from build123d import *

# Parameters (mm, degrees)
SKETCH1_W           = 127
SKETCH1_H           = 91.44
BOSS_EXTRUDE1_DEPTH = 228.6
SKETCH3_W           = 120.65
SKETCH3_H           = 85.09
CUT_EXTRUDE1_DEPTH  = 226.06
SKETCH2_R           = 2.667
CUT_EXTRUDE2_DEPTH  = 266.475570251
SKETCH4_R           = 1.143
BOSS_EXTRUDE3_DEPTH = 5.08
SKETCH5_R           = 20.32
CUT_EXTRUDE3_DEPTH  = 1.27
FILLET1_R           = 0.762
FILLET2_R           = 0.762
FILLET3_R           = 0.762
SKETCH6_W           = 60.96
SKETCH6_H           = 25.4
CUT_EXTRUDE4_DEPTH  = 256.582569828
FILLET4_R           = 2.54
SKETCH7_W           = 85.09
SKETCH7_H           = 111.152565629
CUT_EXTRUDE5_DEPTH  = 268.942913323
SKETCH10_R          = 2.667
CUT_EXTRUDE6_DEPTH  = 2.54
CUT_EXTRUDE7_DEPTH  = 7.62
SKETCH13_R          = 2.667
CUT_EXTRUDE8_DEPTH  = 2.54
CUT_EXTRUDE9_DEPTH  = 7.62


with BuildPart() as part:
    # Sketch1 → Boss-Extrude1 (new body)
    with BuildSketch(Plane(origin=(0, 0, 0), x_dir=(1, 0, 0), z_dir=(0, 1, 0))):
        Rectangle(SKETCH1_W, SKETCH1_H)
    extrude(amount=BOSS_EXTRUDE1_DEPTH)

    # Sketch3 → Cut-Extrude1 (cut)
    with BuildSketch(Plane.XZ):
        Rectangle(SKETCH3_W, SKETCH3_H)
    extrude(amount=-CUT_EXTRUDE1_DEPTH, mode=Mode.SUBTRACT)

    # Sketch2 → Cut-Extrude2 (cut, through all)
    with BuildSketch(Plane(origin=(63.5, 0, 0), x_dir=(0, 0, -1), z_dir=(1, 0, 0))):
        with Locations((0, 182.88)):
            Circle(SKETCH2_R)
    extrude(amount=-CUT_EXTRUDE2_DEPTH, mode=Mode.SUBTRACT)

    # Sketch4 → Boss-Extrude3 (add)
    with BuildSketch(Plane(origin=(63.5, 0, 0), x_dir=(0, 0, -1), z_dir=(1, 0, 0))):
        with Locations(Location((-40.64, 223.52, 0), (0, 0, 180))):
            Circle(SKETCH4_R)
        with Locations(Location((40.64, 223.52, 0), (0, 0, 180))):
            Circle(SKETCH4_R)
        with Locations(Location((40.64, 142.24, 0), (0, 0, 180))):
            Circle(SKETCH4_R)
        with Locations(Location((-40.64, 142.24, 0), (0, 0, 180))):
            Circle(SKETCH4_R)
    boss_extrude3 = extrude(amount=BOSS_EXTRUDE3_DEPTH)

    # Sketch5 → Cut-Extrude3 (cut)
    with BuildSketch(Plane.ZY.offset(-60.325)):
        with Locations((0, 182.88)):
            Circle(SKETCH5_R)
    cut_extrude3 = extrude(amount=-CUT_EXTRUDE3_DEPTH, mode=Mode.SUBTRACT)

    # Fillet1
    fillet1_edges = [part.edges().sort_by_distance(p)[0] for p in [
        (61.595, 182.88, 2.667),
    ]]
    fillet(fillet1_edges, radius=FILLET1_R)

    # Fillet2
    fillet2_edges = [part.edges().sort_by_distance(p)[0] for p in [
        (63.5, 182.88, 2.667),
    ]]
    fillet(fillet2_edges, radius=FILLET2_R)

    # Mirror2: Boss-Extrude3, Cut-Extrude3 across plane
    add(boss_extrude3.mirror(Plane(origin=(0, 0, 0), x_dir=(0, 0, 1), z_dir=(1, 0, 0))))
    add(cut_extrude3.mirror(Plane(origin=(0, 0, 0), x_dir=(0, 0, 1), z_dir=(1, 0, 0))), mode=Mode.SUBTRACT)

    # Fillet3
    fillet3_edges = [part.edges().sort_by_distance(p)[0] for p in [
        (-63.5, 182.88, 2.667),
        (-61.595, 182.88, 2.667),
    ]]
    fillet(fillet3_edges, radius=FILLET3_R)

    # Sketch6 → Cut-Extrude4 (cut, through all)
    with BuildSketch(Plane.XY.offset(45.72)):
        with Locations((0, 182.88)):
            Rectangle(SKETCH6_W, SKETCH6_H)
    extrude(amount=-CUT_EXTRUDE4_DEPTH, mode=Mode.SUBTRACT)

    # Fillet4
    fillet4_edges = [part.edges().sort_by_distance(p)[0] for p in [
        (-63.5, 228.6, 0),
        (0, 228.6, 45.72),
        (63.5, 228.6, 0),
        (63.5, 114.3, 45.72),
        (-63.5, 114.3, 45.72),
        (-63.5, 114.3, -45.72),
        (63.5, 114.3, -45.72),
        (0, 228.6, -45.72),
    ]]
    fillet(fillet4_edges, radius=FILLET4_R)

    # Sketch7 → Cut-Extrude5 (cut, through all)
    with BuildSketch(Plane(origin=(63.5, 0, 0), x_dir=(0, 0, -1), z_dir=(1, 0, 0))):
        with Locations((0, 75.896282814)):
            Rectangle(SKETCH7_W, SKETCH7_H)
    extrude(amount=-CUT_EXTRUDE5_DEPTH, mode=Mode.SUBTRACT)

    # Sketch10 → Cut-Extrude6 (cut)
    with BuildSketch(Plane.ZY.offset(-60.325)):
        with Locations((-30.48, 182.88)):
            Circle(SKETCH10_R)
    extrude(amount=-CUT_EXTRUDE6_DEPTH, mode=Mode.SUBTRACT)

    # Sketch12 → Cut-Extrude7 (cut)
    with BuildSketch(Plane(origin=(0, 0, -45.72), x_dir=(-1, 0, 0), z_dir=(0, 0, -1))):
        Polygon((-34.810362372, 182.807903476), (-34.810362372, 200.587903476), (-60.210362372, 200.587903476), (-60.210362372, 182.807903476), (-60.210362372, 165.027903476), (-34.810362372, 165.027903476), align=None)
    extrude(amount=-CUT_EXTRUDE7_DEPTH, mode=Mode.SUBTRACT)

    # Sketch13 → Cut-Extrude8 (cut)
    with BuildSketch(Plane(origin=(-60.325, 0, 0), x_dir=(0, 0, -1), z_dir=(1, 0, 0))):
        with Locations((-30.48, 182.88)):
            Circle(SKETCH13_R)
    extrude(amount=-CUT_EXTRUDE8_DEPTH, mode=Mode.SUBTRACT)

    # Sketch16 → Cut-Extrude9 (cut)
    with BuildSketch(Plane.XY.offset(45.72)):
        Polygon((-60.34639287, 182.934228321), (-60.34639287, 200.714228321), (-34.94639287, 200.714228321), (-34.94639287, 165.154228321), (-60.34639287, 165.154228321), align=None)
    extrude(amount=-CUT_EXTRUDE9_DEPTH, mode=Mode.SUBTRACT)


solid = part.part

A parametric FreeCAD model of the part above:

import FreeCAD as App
import Part
import Sketcher
from FreeCAD import Vector
Q = App.Units.Quantity


def edges_at(feature, points):
    """Names of the edges that pass closest to the given points."""
    edges = feature.Shape.Edges
    near = lambda p: min(range(len(edges)), key=lambda i: edges[i].distToShape(Part.Vertex(*p))[0])
    return sorted({f"Edge{near(p) + 1}" for p in points})

doc = App.newDocument("Part")
body = doc.addObject("PartDesign::Body", "Body")

sketch1 = body.newObject("Sketcher::SketchObject", "Sketch")
sketch1.AttachmentSupport = (doc.getObject("XZ_Plane"), [""])
sketch1.MapMode = "FlatFace"
sketch1.addGeometry([
    Part.LineSegment(Vector(-64, -46, 0), Vector(-64, 46, 0)),
    Part.LineSegment(Vector(-64, 46, 0), Vector(64, 46, 0)),
    Part.LineSegment(Vector(64, 46, 0), Vector(64, -46, 0)),
    Part.LineSegment(Vector(64, -46, 0), Vector(-64, -46, 0)),
], False)
sketch1.addConstraint([
    Sketcher.Constraint("Coincident", 0, 2, 1, 1),
    Sketcher.Constraint("Coincident", 1, 2, 2, 1),
    Sketcher.Constraint("Coincident", 2, 2, 3, 1),
    Sketcher.Constraint("Coincident", 3, 2, 0, 1),
    Sketcher.Constraint("Vertical", 0),
    Sketcher.Constraint("Horizontal", 1),
    Sketcher.Constraint("Vertical", 2),
    Sketcher.Constraint("Horizontal", 3),
    Sketcher.Constraint("Symmetric", 0, 2, 2, 2, -1, 1),
    Sketcher.Constraint("DistanceX", 1, 1, 1, 2, Q("5 in")),
    Sketcher.Constraint("DistanceY", 0, 1, 0, 2, Q("3.6 in")),
])
pad1 = body.newObject("PartDesign::Pad", "Pad")
pad1.Profile = sketch1
pad1.Length = Q("9 in")
pad1.Reversed = True

sketch2 = body.newObject("Sketcher::SketchObject", "Sketch001")
sketch2.AttachmentSupport = (doc.getObject("XZ_Plane"), [""])
sketch2.MapMode = "FlatFace"
sketch2.addGeometry([
    Part.LineSegment(Vector(-60, 43, 0), Vector(-60, -43, 0)),
    Part.LineSegment(Vector(-60, -43, 0), Vector(60, -43, 0)),
    Part.LineSegment(Vector(60, -43, 0), Vector(60, 43, 0)),
    Part.LineSegment(Vector(60, 43, 0), Vector(-60, 43, 0)),
], False)
sketch2.addConstraint([
    Sketcher.Constraint("Coincident", 0, 2, 1, 1),
    Sketcher.Constraint("Coincident", 1, 2, 2, 1),
    Sketcher.Constraint("Coincident", 2, 2, 3, 1),
    Sketcher.Constraint("Coincident", 3, 2, 0, 1),
    Sketcher.Constraint("Vertical", 0),
    Sketcher.Constraint("Horizontal", 1),
    Sketcher.Constraint("Vertical", 2),
    Sketcher.Constraint("Horizontal", 3),
    Sketcher.Constraint("Symmetric", 0, 2, 2, 2, -1, 1),
    Sketcher.Constraint("DistanceX", 1, 1, 1, 2, Q("4.75 in")),
    Sketcher.Constraint("DistanceY", 0, 2, 0, 1, Q("3.35 in")),
])
pocket1 = body.newObject("PartDesign::Pocket", "Pocket")
pocket1.Profile = sketch2
pocket1.Length = Q("8.9 in")

sketch3 = body.newObject("Sketcher::SketchObject", "Sketch002")
sketch3.AttachmentSupport = (doc.getObject("YZ_Plane"), [""])
sketch3.MapMode = "FlatFace"
sketch3.AttachmentOffset = App.Placement(Vector(0, 0, 2.5 * 25.4), App.Rotation())
sketch3.addGeometry(Part.Circle(Vector(182.9, 0, 0), Vector(0, 0, 1), 2.7), False)
sketch3.addConstraint([
    Sketcher.Constraint("PointOnObject", 0, 3, -1),
    Sketcher.Constraint("Diameter", 0, Q("0.21 in")),
    Sketcher.Constraint("DistanceX", -1, 1, 0, 3, Q("7.2 in")),
])
pocket2 = body.newObject("PartDesign::Pocket", "Pocket001")
pocket2.Profile = sketch3
pocket2.Type = "ThroughAll"

sketch4 = body.newObject("Sketcher::SketchObject", "Sketch003")
sketch4.AttachmentSupport = (doc.getObject("YZ_Plane"), [""])
sketch4.MapMode = "FlatFace"
sketch4.AttachmentOffset = App.Placement(Vector(0, 0, 2.5 * 25.4), App.Rotation())
sketch4.addGeometry([
    Part.Circle(Vector(223.5, 40.6, 0), Vector(0, 0, 1), 1.1),
    Part.Circle(Vector(223.5, -40.6, 0), Vector(0, 0, 1), 1.1),
    Part.Circle(Vector(142.2, -40.6, 0), Vector(0, 0, 1), 1.1),
    Part.Circle(Vector(142.2, 40.6, 0), Vector(0, 0, 1), 1.1),
], False)
sketch4.addConstraint([
    Sketcher.Constraint("Equal", 0, 1),
    Sketcher.Constraint("Equal", 1, 2),
    Sketcher.Constraint("Equal", 2, 3),
    Sketcher.Constraint("Symmetric", 0, 3, 1, 3, -1),
    Sketcher.Constraint("Symmetric", 2, 3, 3, 3, -1),
    Sketcher.Constraint("Horizontal", 1, 3, 2, 3),
    Sketcher.Constraint("Diameter", 0, Q("0.09 in")),
    Sketcher.Constraint("DistanceX", -1, 1, 0, 3, Q("8.8 in")),
    Sketcher.Constraint("DistanceY", -1, 1, 0, 3, Q("1.6 in")),
    Sketcher.Constraint("DistanceX", -1, 1, 2, 3, Q("5.6 in")),
])
pad2 = body.newObject("PartDesign::Pad", "Pad001")
pad2.Profile = sketch4
pad2.Length = Q("0.2 in")

sketch5 = body.newObject("Sketcher::SketchObject", "Sketch004")
sketch5.AttachmentSupport = (doc.getObject("YZ_Plane"), [""])
sketch5.MapMode = "FlatFace"
sketch5.AttachmentOffset = App.Placement(Vector(0, 0, 2.375 * 25.4), App.Rotation())
sketch5.addGeometry(Part.Circle(Vector(183, 0, 0), Vector(0, 0, 1), 20), False)
sketch5.addConstraint([
    Sketcher.Constraint("PointOnObject", 0, 3, -1),
    Sketcher.Constraint("Diameter", 0, Q("1.6 in")),
    Sketcher.Constraint("DistanceX", -1, 1, 0, 3, Q("7.2 in")),
])
pocket3 = body.newObject("PartDesign::Pocket", "Pocket002")
pocket3.Profile = sketch5
pocket3.Length = Q("0.05 in")
pocket3.Reversed = True
doc.recompute()

fillet = body.newObject("PartDesign::Fillet", "Fillet")
fillet.Base = (pocket3, edges_at(pocket3, [(61.595, 182.88, 2.667)]))
fillet.Radius = Q("0.03 in")
doc.recompute()

fillet2 = body.newObject("PartDesign::Fillet", "Fillet001")
fillet2.Base = (fillet, edges_at(fillet, [(63.5, 182.88, 2.667)]))
fillet2.Radius = Q("0.03 in")
doc.recompute()

mirrored = body.newObject("PartDesign::Mirrored", "Mirrored")
mirrored.Originals = [pad2, pocket3]
mirrored.MirrorPlane = (doc.getObject("YZ_Plane"), [""])
body.Tip = mirrored
doc.recompute()

fillet3 = body.newObject("PartDesign::Fillet", "Fillet002")
fillet3.Base = (mirrored, edges_at(mirrored, [(-63.5, 182.88, 2.667), (-61.595, 182.88, 2.667)]))
fillet3.Radius = Q("0.03 in")

sketch6 = body.newObject("Sketcher::SketchObject", "Sketch005")
sketch6.AttachmentSupport = (doc.getObject("XY_Plane"), [""])
sketch6.MapMode = "FlatFace"
sketch6.AttachmentOffset = App.Placement(Vector(0, 0, 1.8 * 25.4), App.Rotation())
sketch6.addGeometry([
    Part.LineSegment(Vector(-30, 196, 0), Vector(-30, 170, 0)),
    Part.LineSegment(Vector(-30, 170, 0), Vector(30, 170, 0)),
    Part.LineSegment(Vector(30, 170, 0), Vector(30, 196, 0)),
    Part.LineSegment(Vector(30, 196, 0), Vector(-30, 196, 0)),
], False)
sketch6.addConstraint([
    Sketcher.Constraint("Coincident", 0, 2, 1, 1),
    Sketcher.Constraint("Coincident", 1, 2, 2, 1),
    Sketcher.Constraint("Coincident", 2, 2, 3, 1),
    Sketcher.Constraint("Coincident", 3, 2, 0, 1),
    Sketcher.Constraint("Vertical", 0),
    Sketcher.Constraint("Horizontal", 1),
    Sketcher.Constraint("Vertical", 2),
    Sketcher.Constraint("Horizontal", 3),
    Sketcher.Constraint("DistanceY", 0, 2, 0, 1, Q("1 in")),
    Sketcher.Constraint("DistanceX", 1, 1, 1, 2, Q("2.4 in")),
    Sketcher.Constraint("DistanceX", 0, 2, -1, 1, Q("1.2 in")),
    Sketcher.Constraint("DistanceY", -1, 1, 0, 2, Q("6.7 in")),
])
pocket4 = body.newObject("PartDesign::Pocket", "Pocket003")
pocket4.Profile = sketch6
pocket4.Type = "ThroughAll"
doc.recompute()

fillet4 = body.newObject("PartDesign::Fillet", "Fillet003")
fillet4.Base = (pocket4, edges_at(pocket4, [
    (-63.5, 228.6, 0),
    (0, 228.6, 45.72),
    (63.5, 228.6, 0),
    (63.5, 114.3, 45.72),
    (-63.5, 114.3, 45.72),
    (-63.5, 114.3, -45.72),
    (63.5, 114.3, -45.72),
    (0, 228.6, -45.72),
]))
fillet4.Radius = Q("0.1 in")

sketch7 = body.newObject("Sketcher::SketchObject", "Sketch006")
sketch7.AttachmentSupport = (doc.getObject("YZ_Plane"), [""])
sketch7.MapMode = "FlatFace"
sketch7.AttachmentOffset = App.Placement(Vector(0, 0, 2.5 * 25.4), App.Rotation())
sketch7.addGeometry([
    Part.LineSegment(Vector(131, 43, 0), Vector(20, 43, 0)),
    Part.LineSegment(Vector(20, 43, 0), Vector(20, -43, 0)),
    Part.LineSegment(Vector(20, -43, 0), Vector(131, -43, 0)),
    Part.LineSegment(Vector(131, -43, 0), Vector(131, 43, 0)),
], False)
sketch7.addConstraint([
    Sketcher.Constraint("Coincident", 0, 2, 1, 1),
    Sketcher.Constraint("Coincident", 1, 2, 2, 1),
    Sketcher.Constraint("Coincident", 2, 2, 3, 1),
    Sketcher.Constraint("Coincident", 3, 2, 0, 1),
    Sketcher.Constraint("Horizontal", 0),
    Sketcher.Constraint("Vertical", 1),
    Sketcher.Constraint("Horizontal", 2),
    Sketcher.Constraint("Vertical", 3),
    Sketcher.Constraint("DistanceY", 1, 2, 1, 1, Q("3.35 in")),
    Sketcher.Constraint("DistanceX", -1, 1, 0, 2, Q("0.8 in")),
    Sketcher.Constraint("DistanceY", -1, 1, 0, 2, Q("1.675 in")),
    Sketcher.Constraint("DistanceX", 0, 2, 0, 1, Q("111.152566 mm")),
])
pocket5 = body.newObject("PartDesign::Pocket", "Pocket004")
pocket5.Profile = sketch7
pocket5.Type = "ThroughAll"

sketch8 = body.newObject("Sketcher::SketchObject", "Sketch007")
sketch8.AttachmentSupport = (doc.getObject("YZ_Plane"), [""])
sketch8.MapMode = "FlatFace"
sketch8.AttachmentOffset = App.Placement(Vector(0, 0, 2.375 * 25.4), App.Rotation())
sketch8.addGeometry(Part.Circle(Vector(182.9, -30.5, 0), Vector(0, 0, 1), 2.7), False)
sketch8.addConstraint([
    Sketcher.Constraint("Diameter", 0, Q("0.21 in")),
    Sketcher.Constraint("DistanceX", -1, 1, 0, 3, Q("7.2 in")),
    Sketcher.Constraint("DistanceY", 0, 3, -1, 1, Q("1.2 in")),
])
pocket6 = body.newObject("PartDesign::Pocket", "Pocket005")
pocket6.Profile = sketch8
pocket6.Length = Q("0.1 in")
pocket6.Reversed = True

sketch9 = body.newObject("Sketcher::SketchObject", "Sketch008")
sketch9.AttachmentSupport = (doc.getObject("XY_Plane"), [""])
sketch9.MapMode = "FlatFace"
sketch9.AttachmentOffset = App.Placement(Vector(0, 0, -1.8 * 25.4), App.Rotation())
sketch9.addGeometry([
    Part.LineSegment(Vector(35, 201, 0), Vector(60, 201, 0)),
    Part.LineSegment(Vector(60, 201, 0), Vector(60, 165, 0)),
    Part.LineSegment(Vector(60, 165, 0), Vector(35, 165, 0)),
    Part.LineSegment(Vector(35, 165, 0), Vector(35, 201, 0)),
], False)
sketch9.addConstraint([
    Sketcher.Constraint("Coincident", 0, 2, 1, 1),
    Sketcher.Constraint("Coincident", 1, 2, 2, 1),
    Sketcher.Constraint("Coincident", 2, 2, 3, 1),
    Sketcher.Constraint("Coincident", 3, 2, 0, 1),
    Sketcher.Constraint("Horizontal", 0),
    Sketcher.Constraint("Vertical", 1),
    Sketcher.Constraint("Horizontal", 2),
    Sketcher.Constraint("Vertical", 3),
    Sketcher.Constraint("DistanceX", 0, 1, 0, 2, Q("1 in")),
    Sketcher.Constraint("DistanceY", 1, 2, 1, 1, Q("1.4 in")),
    Sketcher.Constraint("DistanceX", -1, 1, 0, 2, Q("60.210362 mm")),
    Sketcher.Constraint("DistanceY", -1, 1, 0, 2, Q("200.587903 mm")),
])
pocket7 = body.newObject("PartDesign::Pocket", "Pocket006")
pocket7.Profile = sketch9
pocket7.Length = Q("0.3 in")
pocket7.Reversed = True

sketch10 = body.newObject("Sketcher::SketchObject", "Sketch009")
sketch10.AttachmentSupport = (doc.getObject("YZ_Plane"), [""])
sketch10.MapMode = "FlatFace"
sketch10.AttachmentOffset = App.Placement(Vector(0, 0, -2.375 * 25.4), App.Rotation())
sketch10.addGeometry(Part.Circle(Vector(182.9, 30.5, 0), Vector(0, 0, 1), 2.7), False)
sketch10.addConstraint([
    Sketcher.Constraint("Diameter", 0, Q("0.21 in")),
    Sketcher.Constraint("DistanceX", -1, 1, 0, 3, Q("7.2 in")),
    Sketcher.Constraint("DistanceY", -1, 1, 0, 3, Q("1.2 in")),
])
pocket8 = body.newObject("PartDesign::Pocket", "Pocket007")
pocket8.Profile = sketch10
pocket8.Length = Q("0.1 in")

sketch11 = body.newObject("Sketcher::SketchObject", "Sketch010")
sketch11.AttachmentSupport = (doc.getObject("XY_Plane"), [""])
sketch11.MapMode = "FlatFace"
sketch11.AttachmentOffset = App.Placement(Vector(0, 0, 1.8 * 25.4), App.Rotation())
sketch11.addGeometry([
    Part.LineSegment(Vector(-60, 201, 0), Vector(-60, 165, 0)),
    Part.LineSegment(Vector(-60, 165, 0), Vector(-35, 165, 0)),
    Part.LineSegment(Vector(-35, 165, 0), Vector(-35, 201, 0)),
    Part.LineSegment(Vector(-35, 201, 0), Vector(-60, 201, 0)),
], False)
sketch11.addConstraint([
    Sketcher.Constraint("Coincident", 0, 2, 1, 1),
    Sketcher.Constraint("Coincident", 1, 2, 2, 1),
    Sketcher.Constraint("Coincident", 2, 2, 3, 1),
    Sketcher.Constraint("Coincident", 3, 2, 0, 1),
    Sketcher.Constraint("Vertical", 0),
    Sketcher.Constraint("Horizontal", 1),
    Sketcher.Constraint("Vertical", 2),
    Sketcher.Constraint("Horizontal", 3),
    Sketcher.Constraint("DistanceX", 1, 1, 1, 2, Q("1 in")),
    Sketcher.Constraint("DistanceY", 0, 2, 0, 1, Q("1.4 in")),
    Sketcher.Constraint("DistanceY", -1, 1, 0, 2, Q("165.154228 mm")),
    Sketcher.Constraint("DistanceX", 0, 2, -1, 1, Q("60.346393 mm")),
])
pocket9 = body.newObject("PartDesign::Pocket", "Pocket008")
pocket9.Profile = sketch11
pocket9.Length = Q("0.3 in")

doc.recompute()
